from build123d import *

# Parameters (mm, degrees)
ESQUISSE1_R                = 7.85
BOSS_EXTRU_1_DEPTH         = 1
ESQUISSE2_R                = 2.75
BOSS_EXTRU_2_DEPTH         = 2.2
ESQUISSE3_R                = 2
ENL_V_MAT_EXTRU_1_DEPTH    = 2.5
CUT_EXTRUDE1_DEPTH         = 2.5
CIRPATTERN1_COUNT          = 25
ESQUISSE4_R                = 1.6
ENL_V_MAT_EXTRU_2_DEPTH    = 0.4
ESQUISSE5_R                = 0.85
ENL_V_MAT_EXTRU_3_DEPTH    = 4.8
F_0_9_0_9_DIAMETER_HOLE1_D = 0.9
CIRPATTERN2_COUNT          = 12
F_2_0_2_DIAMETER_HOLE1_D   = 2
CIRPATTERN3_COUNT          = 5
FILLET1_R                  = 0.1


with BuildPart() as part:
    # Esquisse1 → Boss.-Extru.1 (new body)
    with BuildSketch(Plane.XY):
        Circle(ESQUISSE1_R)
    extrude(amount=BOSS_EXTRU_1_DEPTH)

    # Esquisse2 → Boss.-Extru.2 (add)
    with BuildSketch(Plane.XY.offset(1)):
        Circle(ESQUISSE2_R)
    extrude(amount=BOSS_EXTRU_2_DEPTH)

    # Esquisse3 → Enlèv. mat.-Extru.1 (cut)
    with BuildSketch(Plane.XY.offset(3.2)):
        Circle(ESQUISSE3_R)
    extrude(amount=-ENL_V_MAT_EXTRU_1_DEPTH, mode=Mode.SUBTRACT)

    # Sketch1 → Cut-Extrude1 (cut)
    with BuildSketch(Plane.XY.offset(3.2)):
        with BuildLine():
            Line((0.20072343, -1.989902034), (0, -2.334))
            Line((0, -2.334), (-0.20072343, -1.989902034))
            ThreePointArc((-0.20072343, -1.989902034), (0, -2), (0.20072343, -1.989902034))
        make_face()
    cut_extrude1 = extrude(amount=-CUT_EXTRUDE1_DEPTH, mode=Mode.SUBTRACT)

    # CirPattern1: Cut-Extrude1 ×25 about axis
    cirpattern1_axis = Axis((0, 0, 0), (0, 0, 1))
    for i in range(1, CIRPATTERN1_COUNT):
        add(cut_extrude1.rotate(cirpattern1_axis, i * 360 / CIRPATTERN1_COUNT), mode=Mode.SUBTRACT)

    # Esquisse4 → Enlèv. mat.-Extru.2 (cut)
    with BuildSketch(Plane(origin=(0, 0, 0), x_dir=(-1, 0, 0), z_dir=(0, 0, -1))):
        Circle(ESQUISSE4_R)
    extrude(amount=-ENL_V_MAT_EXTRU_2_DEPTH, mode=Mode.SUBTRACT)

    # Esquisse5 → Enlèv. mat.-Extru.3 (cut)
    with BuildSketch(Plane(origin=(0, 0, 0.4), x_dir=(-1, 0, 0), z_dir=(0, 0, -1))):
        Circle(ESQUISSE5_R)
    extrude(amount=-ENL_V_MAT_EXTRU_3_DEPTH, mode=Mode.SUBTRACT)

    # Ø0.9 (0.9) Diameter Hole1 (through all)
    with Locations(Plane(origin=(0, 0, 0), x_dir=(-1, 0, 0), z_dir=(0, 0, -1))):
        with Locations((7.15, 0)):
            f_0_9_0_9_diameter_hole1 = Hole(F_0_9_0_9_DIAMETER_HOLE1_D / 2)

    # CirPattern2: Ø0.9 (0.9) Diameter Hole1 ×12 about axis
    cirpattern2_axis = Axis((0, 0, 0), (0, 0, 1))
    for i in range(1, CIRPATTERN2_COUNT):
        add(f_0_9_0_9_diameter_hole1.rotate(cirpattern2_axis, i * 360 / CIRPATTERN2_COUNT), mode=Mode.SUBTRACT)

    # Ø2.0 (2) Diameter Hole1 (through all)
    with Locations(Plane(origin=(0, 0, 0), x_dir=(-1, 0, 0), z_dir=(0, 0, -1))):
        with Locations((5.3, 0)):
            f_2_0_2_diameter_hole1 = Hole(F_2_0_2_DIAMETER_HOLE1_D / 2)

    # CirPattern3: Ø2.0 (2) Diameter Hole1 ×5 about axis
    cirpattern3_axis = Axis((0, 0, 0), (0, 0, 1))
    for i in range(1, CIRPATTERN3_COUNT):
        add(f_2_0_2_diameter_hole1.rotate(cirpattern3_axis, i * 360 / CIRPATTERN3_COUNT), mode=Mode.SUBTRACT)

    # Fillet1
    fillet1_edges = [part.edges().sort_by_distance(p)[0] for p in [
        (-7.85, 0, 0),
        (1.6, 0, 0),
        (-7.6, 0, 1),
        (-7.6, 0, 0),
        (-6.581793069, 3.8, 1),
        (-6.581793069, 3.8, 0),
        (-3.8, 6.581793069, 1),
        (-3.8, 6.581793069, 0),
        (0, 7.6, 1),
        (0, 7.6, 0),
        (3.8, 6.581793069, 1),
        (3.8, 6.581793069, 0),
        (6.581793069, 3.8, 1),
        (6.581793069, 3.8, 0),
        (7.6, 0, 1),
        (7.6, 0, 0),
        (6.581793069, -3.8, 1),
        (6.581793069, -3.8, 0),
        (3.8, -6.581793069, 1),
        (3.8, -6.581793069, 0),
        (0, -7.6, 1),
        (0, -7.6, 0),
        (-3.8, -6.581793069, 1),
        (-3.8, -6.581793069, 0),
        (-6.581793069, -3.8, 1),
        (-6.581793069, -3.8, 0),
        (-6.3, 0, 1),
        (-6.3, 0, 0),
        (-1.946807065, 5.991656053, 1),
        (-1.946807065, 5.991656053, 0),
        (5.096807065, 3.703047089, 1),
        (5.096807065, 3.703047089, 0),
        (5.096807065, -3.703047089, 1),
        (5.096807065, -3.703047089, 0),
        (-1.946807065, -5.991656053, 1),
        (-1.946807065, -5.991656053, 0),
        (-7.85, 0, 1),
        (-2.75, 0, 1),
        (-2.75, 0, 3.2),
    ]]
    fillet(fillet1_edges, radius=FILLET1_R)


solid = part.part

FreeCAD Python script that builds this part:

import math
import FreeCAD as App
import Part
import Sketcher
Q = App.Units.Quantity


def edges_at(feature, points):
    """Names of the edges that pass closest to the given points."""
    edges = feature.Shape.Edges
    near = lambda p: min(range(len(edges)), key=lambda i: edges[i].distToShape(Part.Vertex(*p))[0])
    return sorted({f"Edge{near(p) + 1}" for p in points})

doc = App.newDocument("Part")
body = doc.addObject("PartDesign::Body", "Body")

sketch1 = body.newObject("Sketcher::SketchObject", "Sketch")
sketch1.AttachmentSupport = (doc.getObject("XY_Plane"), [""])
sketch1.MapMode = "FlatFace"
sketch1.addGeometry(Part.Circle(App.Vector(0, 0, 0), App.Vector(0, 0, 1), 8), False)
sketch1.addConstraint(Sketcher.Constraint("Coincident", 0, 3, -1, 1))
sketch1.addConstraint(Sketcher.Constraint("Diameter", 0, Q("15.7 mm")))
pad1 = body.newObject("PartDesign::Pad", "Pad")
pad1.Profile = sketch1
pad1.Length = 1

sketch2 = body.newObject("Sketcher::SketchObject", "Sketch001")
sketch2.AttachmentSupport = (doc.getObject("XY_Plane"), [""])
sketch2.MapMode = "FlatFace"
sketch2.AttachmentOffset = App.Placement(App.Vector(0, 0, 1), App.Rotation())
sketch2.addGeometry(Part.Circle(App.Vector(0, 0, 0), App.Vector(0, 0, 1), 2.8), False)
sketch2.addConstraint(Sketcher.Constraint("Coincident", 0, 3, -1, 1))
sketch2.addConstraint(Sketcher.Constraint("Diameter", 0, Q("5.5 mm")))
pad2 = body.newObject("PartDesign::Pad", "Pad001")
pad2.Profile = sketch2
pad2.Length = 2.2

sketch3 = body.newObject("Sketcher::SketchObject", "Sketch002")
sketch3.AttachmentSupport = (doc.getObject("XY_Plane"), [""])
sketch3.MapMode = "FlatFace"
sketch3.AttachmentOffset = App.Placement(App.Vector(0, 0, 3.2), App.Rotation())
sketch3.addGeometry(Part.Circle(App.Vector(0, 0, 0), App.Vector(0, 0, 1), 2), False)
sketch3.addConstraint(Sketcher.Constraint("Coincident", 0, 3, -1, 1))
sketch3.addConstraint(Sketcher.Constraint("Diameter", 0, Q("4 mm")))
pocket1 = body.newObject("PartDesign::Pocket", "Pocket")
pocket1.Profile = sketch3
pocket1.Length = 2.5

sketch4 = body.newObject("Sketcher::SketchObject", "Sketch003")
sketch4.AttachmentSupport = (doc.getObject("XY_Plane"), [""])
sketch4.MapMode = "FlatFace"
sketch4.AttachmentOffset = App.Placement(App.Vector(0, 0, 3.2), App.Rotation())
sketch4.addGeometry(Part.LineSegment(App.Vector(0, -2.33, 0), App.Vector(0.2, -1.99, 0)), False)
sketch4.addGeometry(Part.ArcOfCircle(Part.Circle(App.Vector(0, 0, 0), App.Vector(0, 0, 1), 2), math.radians(-95.76), math.radians(-84.24)), False)
sketch4.addGeometry(Part.LineSegment(App.Vector(-0.2, -1.99, 0), App.Vector(0, -2.33, 0)), False)
sketch4.addConstraint(Sketcher.Constraint("Coincident", 0, 2, 1, 2))
sketch4.addConstraint(Sketcher.Constraint("Coincident", 1, 1, 2, 1))
sketch4.addConstraint(Sketcher.Constraint("Coincident", 2, 2, 0, 1))
sketch4.addConstraint(Sketcher.Constraint("Coincident", 1, 3, -1, 1))
sketch4.addConstraint(Sketcher.Constraint("PointOnObject", 2, 2, -2))
sketch4.addConstraint(Sketcher.Constraint("Horizontal", 0, 2, 1, 1))
sketch4.addConstraint(Sketcher.Constraint("Radius", 1, Q("2 mm")))
sketch4.addConstraint(Sketcher.Constraint("DistanceY", 2, 2, -1, 1, Q("2.334 mm")))
sketch4.addConstraint(Sketcher.Constraint("Distance", 0, Q("0.398363 mm")))
pocket2 = body.newObject("PartDesign::Pocket", "Pocket001")
pocket2.Profile = sketch4
pocket2.Length = 2.5
doc.recompute()

polarpattern = body.newObject("PartDesign::PolarPattern", "PolarPattern")
polarpattern.Originals = [pocket2]
polarpattern.Axis = (doc.getObject("Z_Axis"), [""])
polarpattern.Angle = 360
polarpattern.Occurrences = 25
body.Tip = polarpattern

sketch5 = body.newObject("Sketcher::SketchObject", "Sketch004")
sketch5.AttachmentSupport = (doc.getObject("XY_Plane"), [""])
sketch5.MapMode = "FlatFace"
sketch5.addGeometry(Part.Circle(App.Vector(0, 0, 0), App.Vector(0, 0, 1), 1.6), False)
sketch5.addConstraint(Sketcher.Constraint("Coincident", 0, 3, -1, 1))
sketch5.addConstraint(Sketcher.Constraint("Diameter", 0, Q("3.2 mm")))
pocket3 = body.newObject("PartDesign::Pocket", "Pocket002")
pocket3.Profile = sketch5
pocket3.Length = 0.4
pocket3.Reversed = True

sketch6 = body.newObject("Sketcher::SketchObject", "Sketch005")
sketch6.AttachmentSupport = (doc.getObject("XY_Plane"), [""])
sketch6.MapMode = "FlatFace"
sketch6.AttachmentOffset = App.Placement(App.Vector(0, 0, 0.4), App.Rotation())
sketch6.addGeometry(Part.Circle(App.Vector(0, 0, 0), App.Vector(0, 0, 1), 0.8), False)
sketch6.addConstraint(Sketcher.Constraint("Coincident", 0, 3, -1, 1))
sketch6.addConstraint(Sketcher.Constraint("Diameter", 0, Q("1.7 mm")))
pocket4 = body.newObject("PartDesign::Pocket", "Pocket003")
pocket4.Profile = sketch6
pocket4.Length = 4.8
pocket4.Reversed = True

sketch7 = body.newObject("Sketcher::SketchObject", "Sketch006")
sketch7.AttachmentSupport = (doc.getObject("XY_Plane"), [""])
sketch7.MapMode = "FlatFace"
sketch7.addGeometry(Part.Circle(App.Vector(-7.15, 0, 0), App.Vector(0, 0, 1), 0.45), False)
sketch7.addConstraint(Sketcher.Constraint("PointOnObject", 0, 3, -1))
sketch7.addConstraint(Sketcher.Constraint("Diameter", 0, Q("0.9 mm")))
sketch7.addConstraint(Sketcher.Constraint("DistanceX", 0, 3, -1, 1, Q("7.15 mm")))
doc.recompute()
hole = body.newObject("PartDesign::Hole", "Hole")
hole.Profile = sketch7
hole.ThreadType = "None"
hole.Diameter = 0.9
hole.DepthType = "ThroughAll"
hole.Reversed = True
doc.recompute()

polarpattern2 = body.newObject("PartDesign::PolarPattern", "PolarPattern001")
polarpattern2.Originals = [hole]
polarpattern2.Axis = (doc.getObject("Z_Axis"), [""])
polarpattern2.Angle = 360
polarpattern2.Occurrences = 12
body.Tip = polarpattern2

sketch8 = body.newObject("Sketcher::SketchObject", "Sketch007")
sketch8.AttachmentSupport = (doc.getObject("XY_Plane"), [""])
sketch8.MapMode = "FlatFace"
sketch8.addGeometry(Part.Circle(App.Vector(-5.3, 0, 0), App.Vector(0, 0, 1), 1), False)
sketch8.addConstraint(Sketcher.Constraint("PointOnObject", 0, 3, -1))
sketch8.addConstraint(Sketcher.Constraint("Diameter", 0, Q("2 mm")))
sketch8.addConstraint(Sketcher.Constraint("DistanceX", 0, 3, -1, 1, Q("5.3 mm")))
doc.recompute()
hole2 = body.newObject("PartDesign::Hole", "Hole001")
hole2.Profile = sketch8
hole2.ThreadType = "None"
hole2.Diameter = 2
hole2.DepthType = "ThroughAll"
hole2.Reversed = True
doc.recompute()

polarpattern3 = body.newObject("PartDesign::PolarPattern", "PolarPattern002")
polarpattern3.Originals = [hole2]
polarpattern3.Axis = (doc.getObject("Z_Axis"), [""])
polarpattern3.Angle = 360
polarpattern3.Occurrences = 5
body.Tip = polarpattern3
doc.recompute()

fillet = body.newObject("PartDesign::Fillet", "Fillet")
fillet.Base = (polarpattern3, edges_at(polarpattern3, [
    (-7.85, 0, 0),
    (1.6, 0, 0),
    (-7.6, 0, 1),
    (-7.6, 0, 0),
    (-6.582, 3.8, 1),
    (-6.582, 3.8, 0),
    (-3.8, 6.582, 1),
    (-3.8, 6.582, 0),
    (0, 7.6, 1),
    (0, 7.6, 0),
    (3.8, 6.582, 1),
    (3.8, 6.582, 0),
    (6.582, 3.8, 1),
    (6.582, 3.8, 0),
    (7.6, 0, 1),
    (7.6, 0, 0),
    (6.582, -3.8, 1),
    (6.582, -3.8, 0),
    (3.8, -6.582, 1),
    (3.8, -6.582, 0),
    (0, -7.6, 1),
    (0, -7.6, 0),
    (-3.8, -6.582, 1),
    (-3.8, -6.582, 0),
    (-6.582, -3.8, 1),
    (-6.582, -3.8, 0),
    (-6.3, 0, 1),
    (-6.3, 0, 0),
    (-1.947, 5.992, 1),
    (-1.947, 5.992, 0),
    (5.097, 3.703, 1),
    (5.097, 3.703, 0),
    (5.097, -3.703, 1),
    (5.097, -3.703, 0),
    (-1.947, -5.992, 1),
    (-1.947, -5.992, 0),
    (-7.85, 0, 1),
    (-2.75, 0, 1),
    (-2.75, 0, 3.2),
]))
fillet.Radius = 0.1

doc.recompute()
